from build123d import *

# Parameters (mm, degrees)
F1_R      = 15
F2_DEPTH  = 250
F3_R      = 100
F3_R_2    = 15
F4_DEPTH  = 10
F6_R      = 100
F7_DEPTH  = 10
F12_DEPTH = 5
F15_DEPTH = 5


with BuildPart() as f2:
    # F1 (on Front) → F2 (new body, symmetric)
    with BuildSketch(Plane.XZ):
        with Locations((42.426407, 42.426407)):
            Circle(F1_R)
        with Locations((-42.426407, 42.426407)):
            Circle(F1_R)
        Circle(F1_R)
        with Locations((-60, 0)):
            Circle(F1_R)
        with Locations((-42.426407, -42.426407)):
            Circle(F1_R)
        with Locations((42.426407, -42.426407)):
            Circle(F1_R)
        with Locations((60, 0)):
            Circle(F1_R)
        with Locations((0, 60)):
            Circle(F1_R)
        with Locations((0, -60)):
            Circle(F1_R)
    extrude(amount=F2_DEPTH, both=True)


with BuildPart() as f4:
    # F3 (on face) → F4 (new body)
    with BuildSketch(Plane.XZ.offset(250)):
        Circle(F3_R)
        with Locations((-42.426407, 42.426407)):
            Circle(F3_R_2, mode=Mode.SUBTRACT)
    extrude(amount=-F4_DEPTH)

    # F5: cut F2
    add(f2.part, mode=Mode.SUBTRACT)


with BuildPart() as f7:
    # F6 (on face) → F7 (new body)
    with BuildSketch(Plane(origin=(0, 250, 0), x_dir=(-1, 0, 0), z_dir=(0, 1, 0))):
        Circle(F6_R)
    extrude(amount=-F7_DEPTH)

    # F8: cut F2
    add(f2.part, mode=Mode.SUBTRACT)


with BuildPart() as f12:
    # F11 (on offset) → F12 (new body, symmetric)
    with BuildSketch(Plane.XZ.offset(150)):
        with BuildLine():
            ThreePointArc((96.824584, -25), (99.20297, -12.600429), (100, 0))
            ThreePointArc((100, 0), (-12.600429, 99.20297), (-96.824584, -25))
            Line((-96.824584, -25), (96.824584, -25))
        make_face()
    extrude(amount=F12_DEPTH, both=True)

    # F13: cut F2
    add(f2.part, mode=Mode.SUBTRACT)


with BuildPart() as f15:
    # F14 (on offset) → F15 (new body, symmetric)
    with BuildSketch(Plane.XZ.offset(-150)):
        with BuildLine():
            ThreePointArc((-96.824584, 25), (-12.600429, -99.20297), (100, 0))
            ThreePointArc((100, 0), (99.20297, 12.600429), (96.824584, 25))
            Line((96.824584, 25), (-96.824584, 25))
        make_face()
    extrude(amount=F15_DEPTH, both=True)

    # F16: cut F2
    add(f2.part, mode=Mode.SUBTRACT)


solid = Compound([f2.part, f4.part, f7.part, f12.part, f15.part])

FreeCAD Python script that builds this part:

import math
import FreeCAD as App
import Part
import Sketcher
from FreeCAD import Vector
Q = App.Units.Quantity

doc = App.newDocument("Part")
body = doc.addObject("PartDesign::Body", "Body")
body.AllowCompound = True

# Sketch on XZ plane
sketch1 = body.newObject("Sketcher::SketchObject", "Sketch")
sketch1.AttachmentSupport = (doc.getObject("XZ_Plane"), [""])
sketch1.MapMode = "FlatFace"
sketch1.addGeometry([
    Part.Circle(Vector(42, 42, 0), Vector(0, 0, 1), 15),  # 0
    Part.Circle(Vector(-42, 42, 0), Vector(0, 0, 1), 15),  # 1
    Part.Circle(Vector(0, 0, 0), Vector(0, 0, 1), 15),  # 2
    Part.Circle(Vector(-60, 0, 0), Vector(0, 0, 1), 15),  # 3
    Part.Circle(Vector(-42, -42, 0), Vector(0, 0, 1), 15),  # 4
    Part.Circle(Vector(42, -42, 0), Vector(0, 0, 1), 15),  # 5
    Part.Circle(Vector(60, 0, 0), Vector(0, 0, 1), 15),  # 6
    Part.Circle(Vector(0, 60, 0), Vector(0, 0, 1), 15),  # 7
    Part.Circle(Vector(0, -60, 0), Vector(0, 0, 1), 15),  # 8
], False)
sketch1.addConstraint([
    Sketcher.Constraint("Coincident", 2, 3, -1, 1),
    Sketcher.Constraint("Equal", 0, 1),
    Sketcher.Constraint("Equal", 1, 2),
    Sketcher.Constraint("Equal", 2, 3),
    Sketcher.Constraint("Equal", 3, 4),
    Sketcher.Constraint("Equal", 4, 5),
    Sketcher.Constraint("Equal", 5, 6),
    Sketcher.Constraint("Equal", 6, 7),
    Sketcher.Constraint("Equal", 7, 8),
    Sketcher.Constraint("Symmetric", 0, 3, 4, 3, -1, 1),
    Sketcher.Constraint("Symmetric", 1, 3, 5, 3, -1, 1),
    Sketcher.Constraint("Symmetric", 3, 3, 6, 3, -1, 1),
    Sketcher.Constraint("Symmetric", 7, 3, 8, 3, -1, 1),
    Sketcher.Constraint("Symmetric", 0, 3, 1, 3, -2),
    Sketcher.Constraint("PointOnObject", 3, 3, -1),
    Sketcher.Constraint("PointOnObject", 7, 3, -2),
    Sketcher.Constraint("Diameter", 0, Q("30 mm")),
    Sketcher.Constraint("DistanceX", 3, 3, -1, 1, Q("60 mm")),
    Sketcher.Constraint("DistanceY", -1, 1, 7, 3, Q("60 mm")),
    Sketcher.Constraint("DistanceX", -1, 1, 0, 3, Q("42.426407 mm")),
    Sketcher.Constraint("DistanceY", -1, 1, 0, 3, Q("42.426407 mm")),
])
pad1 = body.newObject("PartDesign::Pad", "Pad")
pad1.Profile = sketch1
pad1.Length = 500
pad1.Midplane = True
body2 = doc.addObject("PartDesign::Body", "Body001")

# Sketch on XZ plane
sketch2 = body2.newObject("Sketcher::SketchObject", "Sketch001")
sketch2.AttachmentSupport = (doc.getObject("XZ_Plane001"), [""])
sketch2.MapMode = "FlatFace"
sketch2.AttachmentOffset = App.Placement(Vector(0, 0, 250), App.Rotation())
sketch2.addGeometry([
    Part.Circle(Vector(0, 0, 0), Vector(0, 0, 1), 100),
    Part.Circle(Vector(-42, 42, 0), Vector(0, 0, 1), 15),
], False)
sketch2.addConstraint([
    Sketcher.Constraint("Coincident", 0, 3, -1, 1),
    Sketcher.Constraint("Diameter", 0, Q("200 mm")),
    Sketcher.Constraint("Diameter", 1, Q("30 mm")),
    Sketcher.Constraint("DistanceX", 1, 3, -1, 1, Q("42.426407 mm")),
    Sketcher.Constraint("DistanceY", -1, 1, 1, 3, Q("42.426407 mm")),
])
pad2 = body2.newObject("PartDesign::Pad", "Pad001")
pad2.Profile = sketch2
pad2.Length = 10
pad2.Reversed = True
doc.recompute()

body3 = doc.addObject("PartDesign::Body", "Body002")
body3.BaseFeature = body
boolean = body2.newObject("PartDesign::Boolean", "Boolean")
boolean.Type = "Cut"
boolean.addObjects([body3])
doc.recompute()
body4 = doc.addObject("PartDesign::Body", "Body003")

# Sketch on XZ plane
sketch3 = body4.newObject("Sketcher::SketchObject", "Sketch002")
sketch3.AttachmentSupport = (doc.getObject("XZ_Plane003"), [""])
sketch3.MapMode = "FlatFace"
sketch3.AttachmentOffset = App.Placement(Vector(0, 0, -250), App.Rotation())
sketch3.addGeometry(Part.Circle(Vector(0, 0, 0), Vector(0, 0, 1), 100), False)
sketch3.addConstraint([
    Sketcher.Constraint("Coincident", 0, 3, -1, 1),
    Sketcher.Constraint("Diameter", 0, Q("200 mm")),
])
pad3 = body4.newObject("PartDesign::Pad", "Pad002")
pad3.Profile = sketch3
pad3.Length = 10
doc.recompute()

body5 = doc.addObject("PartDesign::Body", "Body004")
body5.BaseFeature = body
boolean2 = body4.newObject("PartDesign::Boolean", "Boolean001")
boolean2.Type = "Cut"
boolean2.addObjects([body5])
doc.recompute()
body6 = doc.addObject("PartDesign::Body", "Body005")

# Sketch on XZ plane
sketch4 = body6.newObject("Sketcher::SketchObject", "Sketch003")
sketch4.AttachmentSupport = (doc.getObject("XZ_Plane005"), [""])
sketch4.MapMode = "FlatFace"
sketch4.AttachmentOffset = App.Placement(Vector(0, 0, 150), App.Rotation())
sketch4.addGeometry([
    Part.ArcOfCircle(Part.Circle(Vector(0, 0, 0), Vector(0, 0, 1), 100), math.radians(-14.48), math.radians(0)),
    Part.ArcOfCircle(Part.Circle(Vector(0, 0, 0), Vector(0, 0, 1), 100), math.radians(0), math.radians(194)),
    Part.LineSegment(Vector(-97, -25, 0), Vector(97, -25, 0)),
], False)
sketch4.addConstraint([
    Sketcher.Constraint("Tangent", 0, 2, 1, 1),
    Sketcher.Constraint("Coincident", 1, 2, 2, 1),
    Sketcher.Constraint("Coincident", 2, 2, 0, 1),
    Sketcher.Constraint("Horizontal", 2),
    Sketcher.Constraint("Coincident", 1, 3, -1, 1),
    Sketcher.Constraint("PointOnObject", 0, 2, -1),
    Sketcher.Constraint("Radius", 1, Q("100 mm")),
    Sketcher.Constraint("DistanceY", 1, 2, -1, 1, Q("25 mm")),
    Sketcher.Constraint("Radius", 0, Q("99.999979 mm")),
])
pad4 = body6.newObject("PartDesign::Pad", "Pad003")
pad4.Profile = sketch4
pad4.Length = 10
pad4.Midplane = True
doc.recompute()

body7 = doc.addObject("PartDesign::Body", "Body006")
body7.BaseFeature = body
boolean3 = body6.newObject("PartDesign::Boolean", "Boolean002")
boolean3.Type = "Cut"
boolean3.addObjects([body7])
doc.recompute()
body8 = doc.addObject("PartDesign::Body", "Body007")

# Sketch on XZ plane
sketch5 = body8.newObject("Sketcher::SketchObject", "Sketch004")
sketch5.AttachmentSupport = (doc.getObject("XZ_Plane007"), [""])
sketch5.MapMode = "FlatFace"
sketch5.AttachmentOffset = App.Placement(Vector(0, 0, -150), App.Rotation())
sketch5.addGeometry([
    Part.ArcOfCircle(Part.Circle(Vector(0, 0, 0), Vector(0, 0, 1), 100), math.radians(166), math.radians(360)),
    Part.ArcOfCircle(Part.Circle(Vector(0, 0, 0), Vector(0, 0, 1), 100), math.radians(0), math.radians(14.48)),
    Part.LineSegment(Vector(97, 25, 0), Vector(-97, 25, 0)),
], False)
sketch5.addConstraint([
    Sketcher.Constraint("Tangent", 0, 2, 1, 1),
    Sketcher.Constraint("Coincident", 1, 2, 2, 1),
    Sketcher.Constraint("Coincident", 2, 2, 0, 1),
    Sketcher.Constraint("Horizontal", 2),
    Sketcher.Constraint("Coincident", 0, 3, -1, 1),
    Sketcher.Constraint("PointOnObject", 0, 2, -1),
    Sketcher.Constraint("Radius", 0, Q("100 mm")),
    Sketcher.Constraint("DistanceY", -1, 1, 1, 2, Q("25 mm")),
    Sketcher.Constraint("Radius", 1, Q("99.999979 mm")),
])
pad5 = body8.newObject("PartDesign::Pad", "Pad004")
pad5.Profile = sketch5
pad5.Length = 10
pad5.Midplane = True
doc.recompute()

body9 = doc.addObject("PartDesign::Body", "Body008")
body9.BaseFeature = body
boolean4 = body8.newObject("PartDesign::Boolean", "Boolean003")
boolean4.Type = "Cut"
boolean4.addObjects([body9])
doc.recompute()

doc.recompute()
